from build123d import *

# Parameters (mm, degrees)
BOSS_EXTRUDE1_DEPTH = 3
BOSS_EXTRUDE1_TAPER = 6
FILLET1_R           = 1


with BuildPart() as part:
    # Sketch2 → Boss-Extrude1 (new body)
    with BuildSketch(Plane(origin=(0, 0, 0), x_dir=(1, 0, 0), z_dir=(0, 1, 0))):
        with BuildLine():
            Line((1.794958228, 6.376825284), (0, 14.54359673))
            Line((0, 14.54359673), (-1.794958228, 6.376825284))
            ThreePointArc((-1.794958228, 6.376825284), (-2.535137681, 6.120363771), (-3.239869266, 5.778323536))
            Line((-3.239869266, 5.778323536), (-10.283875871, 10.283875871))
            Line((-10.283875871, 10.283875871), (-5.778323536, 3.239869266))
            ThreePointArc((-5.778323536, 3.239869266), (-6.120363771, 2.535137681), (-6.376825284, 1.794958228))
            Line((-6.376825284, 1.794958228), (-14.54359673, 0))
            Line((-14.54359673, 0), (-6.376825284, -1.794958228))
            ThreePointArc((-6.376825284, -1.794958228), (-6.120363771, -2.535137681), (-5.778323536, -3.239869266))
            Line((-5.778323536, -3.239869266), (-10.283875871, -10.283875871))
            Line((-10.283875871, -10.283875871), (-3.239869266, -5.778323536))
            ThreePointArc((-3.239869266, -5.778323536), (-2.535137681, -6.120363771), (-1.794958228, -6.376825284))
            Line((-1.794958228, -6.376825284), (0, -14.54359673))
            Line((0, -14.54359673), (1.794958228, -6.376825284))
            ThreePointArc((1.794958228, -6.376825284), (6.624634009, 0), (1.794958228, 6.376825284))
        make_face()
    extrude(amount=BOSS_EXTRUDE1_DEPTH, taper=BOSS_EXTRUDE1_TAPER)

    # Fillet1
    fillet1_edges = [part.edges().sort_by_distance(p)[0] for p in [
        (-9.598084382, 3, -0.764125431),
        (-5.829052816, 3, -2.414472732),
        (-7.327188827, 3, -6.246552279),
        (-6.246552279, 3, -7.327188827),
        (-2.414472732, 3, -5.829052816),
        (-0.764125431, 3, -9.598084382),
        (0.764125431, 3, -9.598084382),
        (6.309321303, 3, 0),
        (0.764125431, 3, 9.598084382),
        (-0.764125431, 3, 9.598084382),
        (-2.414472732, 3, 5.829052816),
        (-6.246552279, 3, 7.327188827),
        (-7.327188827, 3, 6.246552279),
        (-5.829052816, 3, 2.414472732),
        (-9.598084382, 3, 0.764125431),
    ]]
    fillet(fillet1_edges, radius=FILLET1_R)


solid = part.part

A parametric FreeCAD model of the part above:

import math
import FreeCAD as App
import Part
import Sketcher


def edges_at(feature, points):
    """Names of the edges that pass closest to the given points."""
    edges = feature.Shape.Edges
    near = lambda p: min(range(len(edges)), key=lambda i: edges[i].distToShape(Part.Vertex(*p))[0])
    return sorted({f"Edge{near(p) + 1}" for p in points})

doc = App.newDocument("Part")
body = doc.addObject("PartDesign::Body", "Body")

# Sketch on XZ plane
sketch1 = doc.addObject("Sketcher::SketchObject", "Sketch")
body.addObject(sketch1)
sketch1.AttachmentSupport = (doc.XZ_Plane, [""])
sketch1.MapMode = "FlatFace"
sketch1.addGeometry(Part.LineSegment(App.Vector(1.8, -6.4, 0), App.Vector(0, -14.5, 0)), False)
sketch1.addGeometry(Part.LineSegment(App.Vector(0, -14.5, 0), App.Vector(-1.8, -6.4, 0)), False)
sketch1.addGeometry(Part.ArcOfCircle(Part.Circle(App.Vector(0, 0, 0), App.Vector(0, 0, 1), 6.6), math.radians(-119.28), math.radians(-105.72)), False)
sketch1.addGeometry(Part.LineSegment(App.Vector(-3.2, -5.8, 0), App.Vector(-10.3, -10.3, 0)), False)
sketch1.addGeometry(Part.LineSegment(App.Vector(-10.3, -10.3, 0), App.Vector(-5.8, -3.2, 0)), False)
sketch1.addGeometry(Part.ArcOfCircle(Part.Circle(App.Vector(0, 0, 0), App.Vector(0, 0, 1), 6.6), math.radians(-164.28), math.radians(-150.72)), False)
sketch1.addGeometry(Part.LineSegment(App.Vector(-6.4, -1.8, 0), App.Vector(-14.5, 0, 0)), False)
sketch1.addGeometry(Part.LineSegment(App.Vector(-14.5, 0, 0), App.Vector(-6.4, 1.8, 0)), False)
sketch1.addGeometry(Part.ArcOfCircle(Part.Circle(App.Vector(0, 0, 0), App.Vector(0, 0, 1), 6.6), math.radians(150.72), math.radians(164.28)), False)
sketch1.addGeometry(Part.LineSegment(App.Vector(-5.8, 3.2, 0), App.Vector(-10.3, 10.3, 0)), False)
sketch1.addGeometry(Part.LineSegment(App.Vector(-10.3, 10.3, 0), App.Vector(-3.2, 5.8, 0)), False)
sketch1.addGeometry(Part.ArcOfCircle(Part.Circle(App.Vector(0, 0, 0), App.Vector(0, 0, 1), 6.6), math.radians(105.72), math.radians(119.28)), False)
sketch1.addGeometry(Part.LineSegment(App.Vector(-1.8, 6.4, 0), App.Vector(0, 14.5, 0)), False)
sketch1.addGeometry(Part.LineSegment(App.Vector(0, 14.5, 0), App.Vector(1.8, 6.4, 0)), False)
sketch1.addGeometry(Part.ArcOfCircle(Part.Circle(App.Vector(0, 0, 0), App.Vector(0, 0, 1), 6.6), math.radians(-74), math.radians(74)), False)
sketch1.addConstraint(Sketcher.Constraint("Coincident", 0, 2, 1, 1))
sketch1.addConstraint(Sketcher.Constraint("Coincident", 1, 2, 2, 2))
sketch1.addConstraint(Sketcher.Constraint("Coincident", 2, 1, 3, 1))
sketch1.addConstraint(Sketcher.Constraint("Coincident", 3, 2, 4, 1))
sketch1.addConstraint(Sketcher.Constraint("Coincident", 4, 2, 5, 2))
sketch1.addConstraint(Sketcher.Constraint("Coincident", 5, 1, 6, 1))
sketch1.addConstraint(Sketcher.Constraint("Coincident", 6, 2, 7, 1))
sketch1.addConstraint(Sketcher.Constraint("Coincident", 7, 2, 8, 2))
sketch1.addConstraint(Sketcher.Constraint("Coincident", 8, 1, 9, 1))
sketch1.addConstraint(Sketcher.Constraint("Coincident", 9, 2, 10, 1))
sketch1.addConstraint(Sketcher.Constraint("Coincident", 10, 2, 11, 2))
sketch1.addConstraint(Sketcher.Constraint("Coincident", 11, 1, 12, 1))
sketch1.addConstraint(Sketcher.Constraint("Coincident", 12, 2, 13, 1))
sketch1.addConstraint(Sketcher.Constraint("Coincident", 13, 2, 14, 2))
sketch1.addConstraint(Sketcher.Constraint("Coincident", 14, 1, 0, 1))
sketch1.addConstraint(Sketcher.Constraint("Coincident", 2, 3, -1, 1))
sketch1.addConstraint(Sketcher.Constraint("Coincident", 5, 3, -1, 1))
sketch1.addConstraint(Sketcher.Constraint("Coincident", 8, 3, -1, 1))
sketch1.addConstraint(Sketcher.Constraint("Coincident", 11, 3, -1, 1))
sketch1.addConstraint(Sketcher.Constraint("Coincident", 14, 3, -1, 1))
sketch1.addConstraint(Sketcher.Constraint("Equal", 2, 5))
sketch1.addConstraint(Sketcher.Constraint("Equal", 5, 8))
sketch1.addConstraint(Sketcher.Constraint("Equal", 8, 11))
sketch1.addConstraint(Sketcher.Constraint("Equal", 11, 14))
sketch1.addConstraint(Sketcher.Constraint("Symmetric", 0, 2, 12, 2, -1, 1))
sketch1.addConstraint(Sketcher.Constraint("Symmetric", 3, 2, 9, 2, -1))
sketch1.addConstraint(Sketcher.Constraint("PointOnObject", 0, 2, -2))
sketch1.addConstraint(Sketcher.Constraint("PointOnObject", 6, 2, -1))
sketch1.addConstraint(Sketcher.Constraint("Perpendicular", 0, 6))
sketch1.addConstraint(Sketcher.Constraint("Perpendicular", 1, 7))
sketch1.addConstraint(Sketcher.Constraint("Perpendicular", 3, 9))
sketch1.addConstraint(Sketcher.Constraint("Perpendicular", 4, 10))
sketch1.addConstraint(Sketcher.Constraint("Perpendicular", 6, 12))
sketch1.addConstraint(Sketcher.Constraint("Perpendicular", 7, 13))
sketch1.addConstraint(Sketcher.Constraint("Horizontal", 11, 1, 13, 2))
sketch1.addConstraint(Sketcher.Constraint("Vertical", 4, 2, 8, 1))
sketch1.addConstraint(Sketcher.Constraint("Equal", 1, 3))
sketch1.addConstraint(Sketcher.Constraint("Equal", 3, 4))
sketch1.addConstraint(Sketcher.Constraint("Equal", 4, 6))
sketch1.addConstraint(Sketcher.Constraint("Radius", 2, 6.624634))
sketch1.addConstraint(Sketcher.Constraint("Distance", 0, 8.3617))
sketch1.addConstraint(Sketcher.Constraint("DistanceY", 1, 2, 2, 1, 0.598502))
sketch1.addConstraint(Sketcher.Constraint("DistanceX", 1, 2, -1, 1, 1.794958))
pad1 = doc.addObject("PartDesign::Pad", "Pad")
body.addObject(pad1)
pad1.Profile = sketch1
pad1.Length = 3
pad1.Reversed = True
pad1.TaperAngle = -6
doc.recompute()

fillet = doc.addObject("PartDesign::Fillet", "Fillet")
body.addObject(fillet)
fillet.Base = (pad1, edges_at(pad1, [
    (-9.598, 3, -0.764),
    (-5.829, 3, -2.414),
    (-7.327, 3, -6.247),
    (-6.247, 3, -7.327),
    (-2.414, 3, -5.829),
    (-0.764, 3, -9.598),
    (0.764, 3, -9.598),
    (6.309, 3, 0),
    (0.764, 3, 9.598),
    (-0.764, 3, 9.598),
    (-2.414, 3, 5.829),
    (-6.247, 3, 7.327),
    (-7.327, 3, 6.247),
    (-5.829, 3, 2.414),
    (-9.598, 3, 0.764),
]))
fillet.Radius = 1

doc.recompute()
